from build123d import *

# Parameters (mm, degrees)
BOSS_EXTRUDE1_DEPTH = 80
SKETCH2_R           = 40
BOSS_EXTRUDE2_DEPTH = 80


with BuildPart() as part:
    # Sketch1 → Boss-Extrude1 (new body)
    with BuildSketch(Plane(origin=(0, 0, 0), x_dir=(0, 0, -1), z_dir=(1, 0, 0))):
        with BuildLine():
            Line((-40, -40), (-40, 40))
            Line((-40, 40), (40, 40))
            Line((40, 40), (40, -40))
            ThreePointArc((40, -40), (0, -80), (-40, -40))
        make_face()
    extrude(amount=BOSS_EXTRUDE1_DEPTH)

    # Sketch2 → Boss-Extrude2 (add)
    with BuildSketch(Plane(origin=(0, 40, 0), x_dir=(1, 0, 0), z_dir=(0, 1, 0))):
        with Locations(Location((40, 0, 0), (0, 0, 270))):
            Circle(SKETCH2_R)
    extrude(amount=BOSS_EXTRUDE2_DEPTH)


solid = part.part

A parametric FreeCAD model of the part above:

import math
import FreeCAD as App
import Part
import Sketcher
from FreeCAD import Vector

doc = App.newDocument("Part")
body = doc.addObject("PartDesign::Body", "Body")

# Sketch on YZ plane
sketch1 = body.newObject("Sketcher::SketchObject", "Sketch")
sketch1.AttachmentSupport = (doc.getObject("YZ_Plane"), [""])
sketch1.MapMode = "FlatFace"
sketch1.addGeometry(Part.LineSegment(Vector(40, 40, 0), Vector(-40, 40, 0)), False)
sketch1.addGeometry(Part.ArcOfCircle(Part.Circle(Vector(-40, 0, 0), Vector(0, 0, 1), 40), math.radians(90), math.radians(270)), False)
sketch1.addGeometry(Part.LineSegment(Vector(-40, -40, 0), Vector(40, -40, 0)), False)
sketch1.addGeometry(Part.LineSegment(Vector(40, -40, 0), Vector(40, 40, 0)), False)
sketch1.addConstraint(Sketcher.Constraint("Tangent", 0, 2, 1, 1))
sketch1.addConstraint(Sketcher.Constraint("Tangent", 1, 2, 2, 1))
sketch1.addConstraint(Sketcher.Constraint("Coincident", 2, 2, 3, 1))
sketch1.addConstraint(Sketcher.Constraint("Coincident", 3, 2, 0, 1))
sketch1.addConstraint(Sketcher.Constraint("Horizontal", 0))
sketch1.addConstraint(Sketcher.Constraint("Horizontal", 2))
sketch1.addConstraint(Sketcher.Constraint("Vertical", 3))
sketch1.addConstraint(Sketcher.Constraint("Symmetric", 0, 2, 2, 2, -1, 1))
sketch1.addConstraint(Sketcher.Constraint("Equal", 2, 3))
sketch1.addConstraint(Sketcher.Constraint("Radius", 1, 40.0))
pad1 = body.newObject("PartDesign::Pad", "Pad")
pad1.Profile = sketch1
pad1.Length = 80

# Sketch on XZ plane
sketch2 = body.newObject("Sketcher::SketchObject", "Sketch001")
sketch2.AttachmentSupport = (doc.getObject("XZ_Plane"), [""])
sketch2.MapMode = "FlatFace"
sketch2.AttachmentOffset = App.Placement(Vector(0, 0, -40), App.Rotation())
sketch2.addGeometry(Part.Circle(Vector(40, 0, 0), Vector(0, 0, 1), 40), False)
sketch2.addConstraint(Sketcher.Constraint("PointOnObject", 0, 3, -1))
sketch2.addConstraint(Sketcher.Constraint("Diameter", 0, 80.0))
sketch2.addConstraint(Sketcher.Constraint("DistanceX", -1, 1, 0, 3, 40.0))
pad2 = body.newObject("PartDesign::Pad", "Pad001")
pad2.Profile = sketch2
pad2.Length = 80
pad2.Reversed = True

doc.recompute()
